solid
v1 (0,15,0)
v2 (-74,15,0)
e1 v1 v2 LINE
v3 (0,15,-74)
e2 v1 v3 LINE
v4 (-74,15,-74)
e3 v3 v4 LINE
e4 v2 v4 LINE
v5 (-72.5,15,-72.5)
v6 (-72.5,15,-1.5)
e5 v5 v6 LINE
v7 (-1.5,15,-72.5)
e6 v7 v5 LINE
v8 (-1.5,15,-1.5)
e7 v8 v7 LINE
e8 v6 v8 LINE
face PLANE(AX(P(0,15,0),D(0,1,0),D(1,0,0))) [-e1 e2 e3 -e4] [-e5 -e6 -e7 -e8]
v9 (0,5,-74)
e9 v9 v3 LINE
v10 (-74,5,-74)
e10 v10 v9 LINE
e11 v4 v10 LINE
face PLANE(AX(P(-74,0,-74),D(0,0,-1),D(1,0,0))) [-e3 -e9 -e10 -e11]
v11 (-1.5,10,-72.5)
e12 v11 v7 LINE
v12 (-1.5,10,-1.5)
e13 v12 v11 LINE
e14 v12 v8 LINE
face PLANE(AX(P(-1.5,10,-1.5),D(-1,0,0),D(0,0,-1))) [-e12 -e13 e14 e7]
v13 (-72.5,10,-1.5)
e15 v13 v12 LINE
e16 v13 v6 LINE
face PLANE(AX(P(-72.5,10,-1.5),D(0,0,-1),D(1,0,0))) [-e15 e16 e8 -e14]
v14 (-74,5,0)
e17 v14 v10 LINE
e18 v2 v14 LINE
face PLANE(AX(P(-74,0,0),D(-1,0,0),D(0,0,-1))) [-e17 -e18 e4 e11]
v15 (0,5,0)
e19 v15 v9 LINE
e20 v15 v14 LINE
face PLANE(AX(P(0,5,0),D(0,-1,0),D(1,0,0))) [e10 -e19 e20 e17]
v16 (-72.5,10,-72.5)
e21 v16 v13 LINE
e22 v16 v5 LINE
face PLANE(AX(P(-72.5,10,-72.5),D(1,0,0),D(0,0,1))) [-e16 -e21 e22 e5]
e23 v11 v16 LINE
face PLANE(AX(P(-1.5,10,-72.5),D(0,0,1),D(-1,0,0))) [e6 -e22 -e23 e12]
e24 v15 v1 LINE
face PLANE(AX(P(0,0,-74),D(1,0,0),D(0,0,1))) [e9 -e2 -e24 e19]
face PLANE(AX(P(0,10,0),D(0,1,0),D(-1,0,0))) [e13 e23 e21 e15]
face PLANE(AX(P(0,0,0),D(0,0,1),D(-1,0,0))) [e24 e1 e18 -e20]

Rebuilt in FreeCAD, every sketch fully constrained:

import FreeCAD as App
import Part
import Sketcher

doc = App.newDocument("Part")
params = doc.addObject("Spreadsheet::Sheet", "Params")
for row, (alias, value) in enumerate([
    ("sketch1_width", "74 mm"),
    ("pad1_length", "10 mm"),
    ("sketch2_width", "74 mm"),
    ("pad2_length", "5 mm"),
    ("sketch3_width", "74 mm"),
    ("pocket1_length", "5 mm"),
], start=1):
    params.set(f"A{row}", alias)
    params.set(f"B{row}", "=" + value)
    params.setAlias(f"B{row}", alias)

body = doc.addObject("PartDesign::Body", "Body")

# Sketch on XZ plane
sketch1 = body.newObject("Sketcher::SketchObject", "Sketch")
sketch1.AttachmentSupport = (doc.getObject("XZ_Plane"), [""])
sketch1.MapMode = "FlatFace"
sketch1.addGeometry([
    Part.LineSegment(App.Vector(-74, 0, 0), App.Vector(0, 0, 0)),
    Part.LineSegment(App.Vector(0, 0, 0), App.Vector(0, -74, 0)),
    Part.LineSegment(App.Vector(0, -74, 0), App.Vector(-74, -74, 0)),
    Part.LineSegment(App.Vector(-74, -74, 0), App.Vector(-74, 0, 0)),
], False)
sketch1.addConstraint([
    Sketcher.Constraint("Coincident", 0, 2, 1, 1),
    Sketcher.Constraint("Coincident", 1, 2, 2, 1),
    Sketcher.Constraint("Coincident", 2, 2, 3, 1),
    Sketcher.Constraint("Coincident", 3, 2, 0, 1),
    Sketcher.Constraint("Horizontal", 0),
    Sketcher.Constraint("Vertical", 1),
    Sketcher.Constraint("Horizontal", 2),
    Sketcher.Constraint("Vertical", 3),
    Sketcher.Constraint("Coincident", 0, 2, -1, 1),
    Sketcher.Constraint("Equal", 2, 1),
    Sketcher.Constraint("DistanceX", 0, 1, 0, 2, 74.0),
])
sketch1.setExpression("Constraints[10]", "Params.sketch1_width")
pad1 = body.newObject("PartDesign::Pad", "Pad")
pad1.Profile = sketch1
pad1.setExpression("Length", "Params.pad1_length")
pad1.Reversed = True

# Sketch on XZ plane
sketch2 = body.newObject("Sketcher::SketchObject", "Sketch001")
sketch2.AttachmentSupport = (doc.getObject("XZ_Plane"), [""])
sketch2.MapMode = "FlatFace"
sketch2.AttachmentOffset = App.Placement(App.Vector(0, 0, -10), App.Rotation())
sketch2.addGeometry([
    Part.LineSegment(App.Vector(-74, 0, 0), App.Vector(0, 0, 0)),  # 0
    Part.LineSegment(App.Vector(0, 0, 0), App.Vector(0, -74, 0)),  # 1
    Part.LineSegment(App.Vector(0, -74, 0), App.Vector(-74, -74, 0)),  # 2
    Part.LineSegment(App.Vector(-74, -74, 0), App.Vector(-74, 0, 0)),  # 3
    Part.LineSegment(App.Vector(-72, -2, 0), App.Vector(-72, -72, 0)),  # 4
    Part.LineSegment(App.Vector(-72, -72, 0), App.Vector(-2, -72, 0)),  # 5
    Part.LineSegment(App.Vector(-2, -72, 0), App.Vector(-2, -2, 0)),  # 6
    Part.LineSegment(App.Vector(-2, -2, 0), App.Vector(-72, -2, 0)),  # 7
], False)
sketch2.addConstraint([
    Sketcher.Constraint("Coincident", 0, 2, 1, 1),
    Sketcher.Constraint("Coincident", 1, 2, 2, 1),
    Sketcher.Constraint("Coincident", 2, 2, 3, 1),
    Sketcher.Constraint("Coincident", 3, 2, 0, 1),
    Sketcher.Constraint("Coincident", 4, 2, 5, 1),
    Sketcher.Constraint("Coincident", 5, 2, 6, 1),
    Sketcher.Constraint("Coincident", 6, 2, 7, 1),
    Sketcher.Constraint("Coincident", 7, 2, 4, 1),
    Sketcher.Constraint("Horizontal", 0),
    Sketcher.Constraint("Vertical", 1),
    Sketcher.Constraint("Horizontal", 2),
    Sketcher.Constraint("Vertical", 3),
    Sketcher.Constraint("Vertical", 4),
    Sketcher.Constraint("Horizontal", 5),
    Sketcher.Constraint("Vertical", 6),
    Sketcher.Constraint("Horizontal", 7),
    Sketcher.Constraint("Coincident", 0, 2, -1, 1),
    Sketcher.Constraint("Equal", 2, 1),
    Sketcher.Constraint("Equal", 7, 4),
    Sketcher.Constraint("DistanceX", 5, 2, -1, 1, 1.5),
    Sketcher.Constraint("DistanceY", 6, 2, -1, 1, 1.5),
    Sketcher.Constraint("DistanceX", 2, 2, 4, 2, 1.5),
    Sketcher.Constraint("DistanceX", 0, 1, 0, 2, 74.0),
])
sketch2.setExpression("Constraints[22]", "Params.sketch2_width")
pad2 = body.newObject("PartDesign::Pad", "Pad001")
pad2.Profile = sketch2
pad2.setExpression("Length", "Params.pad2_length")
pad2.Reversed = True

# Sketch on XZ plane
sketch3 = body.newObject("Sketcher::SketchObject", "Sketch002")
sketch3.AttachmentSupport = (doc.getObject("XZ_Plane"), [""])
sketch3.MapMode = "FlatFace"
sketch3.addGeometry([
    Part.LineSegment(App.Vector(0, -74, 0), App.Vector(0, 0, 0)),
    Part.LineSegment(App.Vector(0, 0, 0), App.Vector(-74, 0, 0)),
    Part.LineSegment(App.Vector(-74, 0, 0), App.Vector(-74, -74, 0)),
    Part.LineSegment(App.Vector(-74, -74, 0), App.Vector(0, -74, 0)),
], False)
sketch3.addConstraint([
    Sketcher.Constraint("Coincident", 0, 2, 1, 1),
    Sketcher.Constraint("Coincident", 1, 2, 2, 1),
    Sketcher.Constraint("Coincident", 2, 2, 3, 1),
    Sketcher.Constraint("Coincident", 3, 2, 0, 1),
    Sketcher.Constraint("Vertical", 0),
    Sketcher.Constraint("Horizontal", 1),
    Sketcher.Constraint("Vertical", 2),
    Sketcher.Constraint("Horizontal", 3),
    Sketcher.Constraint("Coincident", 0, 2, -1, 1),
    Sketcher.Constraint("Equal", 3, 0),
    Sketcher.Constraint("DistanceX", 1, 2, 1, 1, 74.0),
])
sketch3.setExpression("Constraints[10]", "Params.sketch3_width")
pocket1 = body.newObject("PartDesign::Pocket", "Pocket")
pocket1.Profile = sketch3
pocket1.setExpression("Length", "Params.pocket1_length")

doc.recompute()
